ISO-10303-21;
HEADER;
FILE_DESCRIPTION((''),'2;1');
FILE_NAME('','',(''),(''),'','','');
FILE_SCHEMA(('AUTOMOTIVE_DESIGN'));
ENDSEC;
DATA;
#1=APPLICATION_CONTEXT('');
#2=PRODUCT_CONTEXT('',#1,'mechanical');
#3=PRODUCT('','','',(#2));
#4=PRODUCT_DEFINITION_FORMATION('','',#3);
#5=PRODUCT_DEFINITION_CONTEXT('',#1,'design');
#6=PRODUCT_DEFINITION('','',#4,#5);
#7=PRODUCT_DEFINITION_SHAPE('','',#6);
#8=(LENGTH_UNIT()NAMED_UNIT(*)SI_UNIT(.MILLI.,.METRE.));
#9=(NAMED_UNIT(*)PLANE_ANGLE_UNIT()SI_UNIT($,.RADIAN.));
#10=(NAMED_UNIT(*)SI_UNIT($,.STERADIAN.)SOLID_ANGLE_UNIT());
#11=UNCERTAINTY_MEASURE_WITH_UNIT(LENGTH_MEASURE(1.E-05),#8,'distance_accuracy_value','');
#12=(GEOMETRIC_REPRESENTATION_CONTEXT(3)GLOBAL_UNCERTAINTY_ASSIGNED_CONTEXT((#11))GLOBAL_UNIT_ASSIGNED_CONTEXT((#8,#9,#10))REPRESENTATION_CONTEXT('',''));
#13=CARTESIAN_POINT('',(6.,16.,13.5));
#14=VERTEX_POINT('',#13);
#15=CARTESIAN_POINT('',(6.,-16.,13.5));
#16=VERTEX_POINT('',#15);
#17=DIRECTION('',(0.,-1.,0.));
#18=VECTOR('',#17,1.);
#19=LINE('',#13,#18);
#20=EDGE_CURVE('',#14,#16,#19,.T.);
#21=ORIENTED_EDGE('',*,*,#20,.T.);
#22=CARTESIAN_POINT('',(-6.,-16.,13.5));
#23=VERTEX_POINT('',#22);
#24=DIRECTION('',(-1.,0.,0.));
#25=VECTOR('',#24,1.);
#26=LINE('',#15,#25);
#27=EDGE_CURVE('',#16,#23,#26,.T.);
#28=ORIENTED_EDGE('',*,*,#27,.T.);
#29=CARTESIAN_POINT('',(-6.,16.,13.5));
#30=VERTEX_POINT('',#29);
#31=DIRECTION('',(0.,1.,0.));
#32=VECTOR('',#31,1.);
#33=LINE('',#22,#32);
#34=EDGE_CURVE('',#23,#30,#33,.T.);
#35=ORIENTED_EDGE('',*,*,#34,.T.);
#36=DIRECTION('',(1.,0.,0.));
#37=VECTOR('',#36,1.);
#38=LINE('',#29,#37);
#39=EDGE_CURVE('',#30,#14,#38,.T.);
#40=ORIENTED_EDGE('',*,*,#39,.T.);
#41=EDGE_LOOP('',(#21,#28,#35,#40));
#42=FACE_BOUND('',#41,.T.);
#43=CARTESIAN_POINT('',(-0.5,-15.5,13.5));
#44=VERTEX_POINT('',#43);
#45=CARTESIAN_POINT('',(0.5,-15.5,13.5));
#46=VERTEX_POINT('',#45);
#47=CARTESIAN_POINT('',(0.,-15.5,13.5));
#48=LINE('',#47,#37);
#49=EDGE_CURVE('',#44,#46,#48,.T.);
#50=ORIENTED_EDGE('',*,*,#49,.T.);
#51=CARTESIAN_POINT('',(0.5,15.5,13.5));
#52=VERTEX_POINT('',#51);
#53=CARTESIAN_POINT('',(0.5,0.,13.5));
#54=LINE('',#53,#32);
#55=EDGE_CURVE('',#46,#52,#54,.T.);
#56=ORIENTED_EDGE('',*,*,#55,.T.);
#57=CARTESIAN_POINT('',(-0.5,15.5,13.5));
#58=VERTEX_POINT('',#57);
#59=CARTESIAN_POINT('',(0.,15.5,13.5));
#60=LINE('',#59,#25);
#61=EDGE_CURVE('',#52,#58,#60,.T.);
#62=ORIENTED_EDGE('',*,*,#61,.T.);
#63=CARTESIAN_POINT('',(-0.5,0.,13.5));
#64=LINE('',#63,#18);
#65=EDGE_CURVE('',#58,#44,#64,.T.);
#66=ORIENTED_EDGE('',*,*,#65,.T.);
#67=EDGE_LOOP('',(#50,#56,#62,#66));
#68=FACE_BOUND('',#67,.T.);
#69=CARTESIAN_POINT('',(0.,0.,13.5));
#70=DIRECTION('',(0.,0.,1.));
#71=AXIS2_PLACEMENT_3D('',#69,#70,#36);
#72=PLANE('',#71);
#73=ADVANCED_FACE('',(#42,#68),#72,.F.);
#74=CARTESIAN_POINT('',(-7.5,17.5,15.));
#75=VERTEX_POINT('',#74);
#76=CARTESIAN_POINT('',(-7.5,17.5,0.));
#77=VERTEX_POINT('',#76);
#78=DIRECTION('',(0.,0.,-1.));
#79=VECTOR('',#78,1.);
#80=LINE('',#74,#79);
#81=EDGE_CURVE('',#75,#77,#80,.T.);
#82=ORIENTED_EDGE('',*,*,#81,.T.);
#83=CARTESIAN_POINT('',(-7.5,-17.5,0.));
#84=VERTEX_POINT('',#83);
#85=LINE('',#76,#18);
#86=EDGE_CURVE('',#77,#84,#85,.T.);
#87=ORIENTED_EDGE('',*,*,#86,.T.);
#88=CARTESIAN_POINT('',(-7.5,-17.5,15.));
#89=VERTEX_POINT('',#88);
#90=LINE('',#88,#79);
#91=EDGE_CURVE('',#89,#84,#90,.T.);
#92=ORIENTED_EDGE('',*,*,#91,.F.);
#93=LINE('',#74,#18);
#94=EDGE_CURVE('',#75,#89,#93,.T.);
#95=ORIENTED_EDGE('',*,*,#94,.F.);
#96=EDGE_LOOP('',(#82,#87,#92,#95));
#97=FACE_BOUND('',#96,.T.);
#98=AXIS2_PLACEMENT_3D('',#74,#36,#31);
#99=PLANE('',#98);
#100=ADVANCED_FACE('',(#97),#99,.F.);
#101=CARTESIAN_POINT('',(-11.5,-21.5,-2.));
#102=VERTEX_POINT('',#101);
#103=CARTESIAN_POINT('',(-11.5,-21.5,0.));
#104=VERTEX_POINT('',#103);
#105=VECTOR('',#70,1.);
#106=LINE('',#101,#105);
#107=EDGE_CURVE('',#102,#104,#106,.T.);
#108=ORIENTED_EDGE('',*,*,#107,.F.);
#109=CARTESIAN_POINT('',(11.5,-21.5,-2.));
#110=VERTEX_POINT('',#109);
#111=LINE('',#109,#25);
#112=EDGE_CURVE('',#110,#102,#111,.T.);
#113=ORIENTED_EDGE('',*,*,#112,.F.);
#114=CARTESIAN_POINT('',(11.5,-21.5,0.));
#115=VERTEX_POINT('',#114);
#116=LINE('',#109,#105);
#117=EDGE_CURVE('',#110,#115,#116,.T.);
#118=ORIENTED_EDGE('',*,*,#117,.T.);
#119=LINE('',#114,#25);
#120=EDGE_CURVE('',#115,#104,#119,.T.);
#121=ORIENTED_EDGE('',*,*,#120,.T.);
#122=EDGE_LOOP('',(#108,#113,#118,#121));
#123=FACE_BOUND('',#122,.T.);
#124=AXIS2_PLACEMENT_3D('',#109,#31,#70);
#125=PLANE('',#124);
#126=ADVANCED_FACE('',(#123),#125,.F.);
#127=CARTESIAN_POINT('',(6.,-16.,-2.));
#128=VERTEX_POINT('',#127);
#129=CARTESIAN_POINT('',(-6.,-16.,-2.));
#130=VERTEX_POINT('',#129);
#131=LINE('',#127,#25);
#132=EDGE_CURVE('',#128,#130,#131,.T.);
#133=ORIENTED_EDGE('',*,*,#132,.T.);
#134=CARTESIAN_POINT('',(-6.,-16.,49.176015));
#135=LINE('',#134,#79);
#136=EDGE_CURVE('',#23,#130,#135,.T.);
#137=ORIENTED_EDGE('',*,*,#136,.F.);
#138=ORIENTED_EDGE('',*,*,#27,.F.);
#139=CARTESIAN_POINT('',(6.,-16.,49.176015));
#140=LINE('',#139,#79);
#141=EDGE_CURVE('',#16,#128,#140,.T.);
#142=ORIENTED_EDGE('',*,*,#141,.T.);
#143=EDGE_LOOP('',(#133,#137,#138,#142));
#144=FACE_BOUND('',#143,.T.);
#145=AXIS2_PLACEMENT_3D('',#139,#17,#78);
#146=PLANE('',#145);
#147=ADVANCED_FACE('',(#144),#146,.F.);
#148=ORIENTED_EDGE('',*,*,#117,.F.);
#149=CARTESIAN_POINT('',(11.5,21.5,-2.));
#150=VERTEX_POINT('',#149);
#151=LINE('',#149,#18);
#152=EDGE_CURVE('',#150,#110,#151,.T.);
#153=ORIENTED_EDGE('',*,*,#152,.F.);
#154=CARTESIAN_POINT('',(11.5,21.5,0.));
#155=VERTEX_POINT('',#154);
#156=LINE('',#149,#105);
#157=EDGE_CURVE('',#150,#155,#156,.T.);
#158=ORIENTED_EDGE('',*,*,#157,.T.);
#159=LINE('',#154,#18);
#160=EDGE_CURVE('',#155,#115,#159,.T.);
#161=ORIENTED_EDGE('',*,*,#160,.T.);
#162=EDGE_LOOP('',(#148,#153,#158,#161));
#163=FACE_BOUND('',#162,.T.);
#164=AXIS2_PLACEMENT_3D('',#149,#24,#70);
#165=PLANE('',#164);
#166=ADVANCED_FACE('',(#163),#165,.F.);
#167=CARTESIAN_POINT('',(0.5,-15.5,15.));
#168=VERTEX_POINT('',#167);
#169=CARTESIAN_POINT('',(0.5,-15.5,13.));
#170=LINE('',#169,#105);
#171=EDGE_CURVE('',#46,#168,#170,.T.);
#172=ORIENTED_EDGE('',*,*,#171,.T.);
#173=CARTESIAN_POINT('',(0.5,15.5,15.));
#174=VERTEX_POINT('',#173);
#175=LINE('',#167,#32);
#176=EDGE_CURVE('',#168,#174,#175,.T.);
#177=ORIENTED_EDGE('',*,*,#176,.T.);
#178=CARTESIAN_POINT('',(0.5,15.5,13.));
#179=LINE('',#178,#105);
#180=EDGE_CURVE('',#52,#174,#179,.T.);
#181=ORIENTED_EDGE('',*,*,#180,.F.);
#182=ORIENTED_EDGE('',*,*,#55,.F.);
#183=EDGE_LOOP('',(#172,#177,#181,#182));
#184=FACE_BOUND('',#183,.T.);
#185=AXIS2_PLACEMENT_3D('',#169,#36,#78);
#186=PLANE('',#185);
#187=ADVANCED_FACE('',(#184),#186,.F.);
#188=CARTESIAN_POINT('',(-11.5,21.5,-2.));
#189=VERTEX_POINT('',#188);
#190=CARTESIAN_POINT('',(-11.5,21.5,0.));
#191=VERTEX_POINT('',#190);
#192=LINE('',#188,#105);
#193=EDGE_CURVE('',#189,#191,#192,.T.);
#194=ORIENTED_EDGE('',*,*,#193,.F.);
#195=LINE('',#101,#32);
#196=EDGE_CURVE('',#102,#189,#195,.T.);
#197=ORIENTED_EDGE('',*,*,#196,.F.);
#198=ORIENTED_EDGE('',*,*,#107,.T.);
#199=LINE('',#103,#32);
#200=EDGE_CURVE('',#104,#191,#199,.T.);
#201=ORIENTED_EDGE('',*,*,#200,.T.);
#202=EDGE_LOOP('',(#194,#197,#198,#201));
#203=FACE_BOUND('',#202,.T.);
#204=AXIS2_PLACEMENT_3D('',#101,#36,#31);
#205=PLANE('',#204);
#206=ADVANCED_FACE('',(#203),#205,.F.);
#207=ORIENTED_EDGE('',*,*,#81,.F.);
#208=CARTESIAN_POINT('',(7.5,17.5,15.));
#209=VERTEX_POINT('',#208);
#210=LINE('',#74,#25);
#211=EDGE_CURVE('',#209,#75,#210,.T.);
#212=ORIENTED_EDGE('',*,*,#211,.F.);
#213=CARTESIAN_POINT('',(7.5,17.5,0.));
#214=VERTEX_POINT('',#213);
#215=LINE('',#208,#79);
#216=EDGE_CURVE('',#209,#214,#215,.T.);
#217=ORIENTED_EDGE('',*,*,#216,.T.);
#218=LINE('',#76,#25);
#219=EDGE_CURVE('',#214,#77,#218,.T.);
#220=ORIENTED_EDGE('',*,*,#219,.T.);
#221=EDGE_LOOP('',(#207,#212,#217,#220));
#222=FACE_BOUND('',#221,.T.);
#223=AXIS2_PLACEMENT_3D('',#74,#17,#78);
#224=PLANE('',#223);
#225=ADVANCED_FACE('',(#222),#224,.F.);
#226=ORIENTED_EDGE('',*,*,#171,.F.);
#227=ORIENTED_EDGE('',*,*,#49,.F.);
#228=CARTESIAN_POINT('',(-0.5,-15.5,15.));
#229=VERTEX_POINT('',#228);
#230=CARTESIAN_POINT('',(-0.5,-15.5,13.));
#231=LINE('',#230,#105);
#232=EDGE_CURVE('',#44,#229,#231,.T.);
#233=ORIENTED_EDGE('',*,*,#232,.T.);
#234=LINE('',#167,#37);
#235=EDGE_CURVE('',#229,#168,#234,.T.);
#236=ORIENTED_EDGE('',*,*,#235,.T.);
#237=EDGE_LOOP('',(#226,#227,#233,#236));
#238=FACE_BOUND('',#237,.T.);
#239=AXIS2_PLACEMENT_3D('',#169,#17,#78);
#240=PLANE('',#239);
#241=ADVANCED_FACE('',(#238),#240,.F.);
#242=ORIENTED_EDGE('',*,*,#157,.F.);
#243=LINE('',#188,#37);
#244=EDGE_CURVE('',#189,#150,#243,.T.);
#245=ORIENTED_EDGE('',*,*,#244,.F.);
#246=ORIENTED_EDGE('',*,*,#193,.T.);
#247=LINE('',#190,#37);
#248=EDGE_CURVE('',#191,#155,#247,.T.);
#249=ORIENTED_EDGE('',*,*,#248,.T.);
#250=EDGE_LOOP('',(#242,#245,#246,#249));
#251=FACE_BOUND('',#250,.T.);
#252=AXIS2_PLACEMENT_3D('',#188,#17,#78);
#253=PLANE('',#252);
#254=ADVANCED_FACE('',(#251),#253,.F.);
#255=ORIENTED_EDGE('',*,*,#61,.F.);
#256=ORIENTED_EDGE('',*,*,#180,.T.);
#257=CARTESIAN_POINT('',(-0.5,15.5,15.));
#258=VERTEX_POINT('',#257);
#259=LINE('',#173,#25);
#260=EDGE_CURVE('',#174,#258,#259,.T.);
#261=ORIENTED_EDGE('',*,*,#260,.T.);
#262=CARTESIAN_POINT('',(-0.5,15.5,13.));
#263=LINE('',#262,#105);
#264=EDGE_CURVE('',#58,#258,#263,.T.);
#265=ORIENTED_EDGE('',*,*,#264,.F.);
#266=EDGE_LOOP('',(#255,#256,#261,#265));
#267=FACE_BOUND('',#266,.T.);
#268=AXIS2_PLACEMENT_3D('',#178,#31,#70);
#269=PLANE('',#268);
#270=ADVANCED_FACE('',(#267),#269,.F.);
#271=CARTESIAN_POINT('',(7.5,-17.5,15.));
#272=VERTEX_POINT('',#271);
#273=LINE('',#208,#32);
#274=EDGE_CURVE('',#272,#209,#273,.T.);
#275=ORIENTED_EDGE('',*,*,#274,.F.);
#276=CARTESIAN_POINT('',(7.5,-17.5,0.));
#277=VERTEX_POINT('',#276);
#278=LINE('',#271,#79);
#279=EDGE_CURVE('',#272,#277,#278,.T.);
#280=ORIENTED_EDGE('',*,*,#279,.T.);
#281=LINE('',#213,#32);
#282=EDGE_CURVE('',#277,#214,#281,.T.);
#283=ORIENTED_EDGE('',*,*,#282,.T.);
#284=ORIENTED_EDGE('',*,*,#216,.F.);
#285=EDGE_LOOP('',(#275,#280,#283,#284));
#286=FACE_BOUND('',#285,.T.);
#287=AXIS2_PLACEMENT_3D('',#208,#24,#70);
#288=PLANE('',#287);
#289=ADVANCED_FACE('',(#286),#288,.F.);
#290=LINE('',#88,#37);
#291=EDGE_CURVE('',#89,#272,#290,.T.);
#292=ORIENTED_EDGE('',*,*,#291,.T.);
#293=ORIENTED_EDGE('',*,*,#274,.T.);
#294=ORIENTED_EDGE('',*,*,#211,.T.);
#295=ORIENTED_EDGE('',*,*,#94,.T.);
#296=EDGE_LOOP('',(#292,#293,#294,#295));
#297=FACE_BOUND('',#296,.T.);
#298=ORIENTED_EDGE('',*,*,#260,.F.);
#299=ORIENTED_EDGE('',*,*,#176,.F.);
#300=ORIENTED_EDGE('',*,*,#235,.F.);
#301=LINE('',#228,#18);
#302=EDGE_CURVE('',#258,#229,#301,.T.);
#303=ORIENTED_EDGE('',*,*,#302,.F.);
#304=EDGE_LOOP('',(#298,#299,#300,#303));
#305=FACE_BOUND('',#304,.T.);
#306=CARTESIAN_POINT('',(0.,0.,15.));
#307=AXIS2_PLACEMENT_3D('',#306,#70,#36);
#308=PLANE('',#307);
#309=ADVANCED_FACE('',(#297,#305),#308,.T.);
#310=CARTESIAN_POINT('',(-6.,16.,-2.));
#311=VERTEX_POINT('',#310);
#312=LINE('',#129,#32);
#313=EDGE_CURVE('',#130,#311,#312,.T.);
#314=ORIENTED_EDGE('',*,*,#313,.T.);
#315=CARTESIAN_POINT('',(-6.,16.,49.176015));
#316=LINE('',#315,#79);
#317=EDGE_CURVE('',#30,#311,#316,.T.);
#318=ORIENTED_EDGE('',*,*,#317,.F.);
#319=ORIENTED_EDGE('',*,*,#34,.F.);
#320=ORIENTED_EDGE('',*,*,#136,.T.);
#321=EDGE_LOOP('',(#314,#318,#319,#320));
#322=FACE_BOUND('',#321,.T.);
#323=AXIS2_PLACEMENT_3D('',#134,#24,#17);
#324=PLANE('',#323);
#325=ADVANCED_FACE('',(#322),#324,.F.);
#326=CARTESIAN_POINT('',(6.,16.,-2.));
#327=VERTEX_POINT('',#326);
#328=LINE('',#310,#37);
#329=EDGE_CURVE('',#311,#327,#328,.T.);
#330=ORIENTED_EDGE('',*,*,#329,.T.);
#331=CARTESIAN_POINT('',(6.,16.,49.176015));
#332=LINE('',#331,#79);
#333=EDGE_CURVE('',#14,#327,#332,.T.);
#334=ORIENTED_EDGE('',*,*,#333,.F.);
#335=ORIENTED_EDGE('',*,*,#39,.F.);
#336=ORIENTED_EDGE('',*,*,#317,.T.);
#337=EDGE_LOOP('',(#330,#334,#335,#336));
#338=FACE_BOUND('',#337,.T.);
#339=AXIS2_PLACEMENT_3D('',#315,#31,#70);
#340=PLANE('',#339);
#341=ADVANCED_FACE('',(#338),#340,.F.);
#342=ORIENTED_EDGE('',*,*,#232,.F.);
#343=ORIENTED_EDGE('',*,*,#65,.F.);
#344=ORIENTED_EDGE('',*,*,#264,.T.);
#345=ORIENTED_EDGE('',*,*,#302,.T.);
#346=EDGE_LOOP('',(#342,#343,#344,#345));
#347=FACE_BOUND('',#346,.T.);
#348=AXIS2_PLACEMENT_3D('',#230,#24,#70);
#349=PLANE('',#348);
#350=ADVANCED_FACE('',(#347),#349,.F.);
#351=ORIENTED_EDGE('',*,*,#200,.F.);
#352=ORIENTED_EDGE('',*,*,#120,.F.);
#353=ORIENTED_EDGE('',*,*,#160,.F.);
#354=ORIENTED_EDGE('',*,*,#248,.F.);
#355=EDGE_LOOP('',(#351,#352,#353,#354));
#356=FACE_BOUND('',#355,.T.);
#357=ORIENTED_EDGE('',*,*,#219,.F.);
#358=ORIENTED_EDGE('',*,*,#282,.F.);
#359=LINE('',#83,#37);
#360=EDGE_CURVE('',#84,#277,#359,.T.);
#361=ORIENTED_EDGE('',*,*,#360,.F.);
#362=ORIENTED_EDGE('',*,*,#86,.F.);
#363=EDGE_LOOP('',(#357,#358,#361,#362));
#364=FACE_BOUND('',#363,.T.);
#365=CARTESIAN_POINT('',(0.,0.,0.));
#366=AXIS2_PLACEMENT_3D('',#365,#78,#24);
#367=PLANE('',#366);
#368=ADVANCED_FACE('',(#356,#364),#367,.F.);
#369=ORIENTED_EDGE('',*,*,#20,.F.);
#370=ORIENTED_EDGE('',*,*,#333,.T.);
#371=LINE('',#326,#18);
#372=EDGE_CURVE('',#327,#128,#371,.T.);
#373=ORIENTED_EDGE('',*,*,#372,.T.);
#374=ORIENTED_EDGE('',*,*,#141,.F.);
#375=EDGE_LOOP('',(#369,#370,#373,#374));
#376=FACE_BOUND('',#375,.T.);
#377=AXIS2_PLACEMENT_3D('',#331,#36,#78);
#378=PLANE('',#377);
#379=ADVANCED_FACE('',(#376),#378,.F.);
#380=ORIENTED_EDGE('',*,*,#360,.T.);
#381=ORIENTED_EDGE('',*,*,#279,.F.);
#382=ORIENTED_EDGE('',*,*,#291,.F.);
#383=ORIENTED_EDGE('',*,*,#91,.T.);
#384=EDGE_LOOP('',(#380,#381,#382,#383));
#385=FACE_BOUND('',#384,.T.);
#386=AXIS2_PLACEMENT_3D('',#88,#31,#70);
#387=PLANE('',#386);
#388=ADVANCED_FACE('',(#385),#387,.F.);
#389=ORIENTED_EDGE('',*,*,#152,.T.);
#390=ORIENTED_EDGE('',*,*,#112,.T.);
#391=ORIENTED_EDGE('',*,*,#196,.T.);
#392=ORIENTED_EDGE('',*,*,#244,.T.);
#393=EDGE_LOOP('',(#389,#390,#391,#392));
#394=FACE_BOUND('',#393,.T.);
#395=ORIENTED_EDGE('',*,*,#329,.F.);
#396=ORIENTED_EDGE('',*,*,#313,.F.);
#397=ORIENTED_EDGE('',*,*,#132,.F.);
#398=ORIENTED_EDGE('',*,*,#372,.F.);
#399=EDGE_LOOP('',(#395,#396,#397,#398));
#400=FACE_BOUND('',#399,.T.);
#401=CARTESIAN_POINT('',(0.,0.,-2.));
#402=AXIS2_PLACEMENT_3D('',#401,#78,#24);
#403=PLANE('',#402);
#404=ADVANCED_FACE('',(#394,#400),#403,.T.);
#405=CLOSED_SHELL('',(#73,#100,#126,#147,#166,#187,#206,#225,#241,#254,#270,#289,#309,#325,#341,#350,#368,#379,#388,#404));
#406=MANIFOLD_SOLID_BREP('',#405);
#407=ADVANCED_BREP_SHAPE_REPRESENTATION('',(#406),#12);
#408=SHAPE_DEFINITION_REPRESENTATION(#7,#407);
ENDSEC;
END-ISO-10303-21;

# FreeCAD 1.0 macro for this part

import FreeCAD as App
import Part
import Sketcher

V = App.Vector
Q = App.Units.Quantity


def add_polygon(sketch, points):
    """Adds a closed chain of lines whose ends are joined by coincident constraints."""
    first, n = sketch.GeometryCount, len(points)
    for a, b in zip(points, points[1:] + points[:1]):
        sketch.addGeometry(Part.LineSegment(App.Vector(*a, 0), App.Vector(*b, 0)), False)
    for i in range(n):
        sketch.addConstraint(Sketcher.Constraint("Coincident", first + i, 2, first + (i + 1) % n, 1))

doc = App.newDocument("Part")
body = doc.addObject("PartDesign::Body", "Body")

# Sketch on XY plane
sketch1 = doc.addObject("Sketcher::SketchObject", "Sketch")
body.addObject(sketch1)
sketch1.AttachmentSupport = (doc.XY_Plane, [""])
sketch1.MapMode = "FlatFace"
add_polygon(sketch1, [(-7.5, 17.5), (-7.5, -17.5), (7.5, -17.5), (7.5, 17.5)])  # lines 0-3
sketch1.addConstraint(Sketcher.Constraint("Vertical", 0))
sketch1.addConstraint(Sketcher.Constraint("Horizontal", 1))
sketch1.addConstraint(Sketcher.Constraint("Vertical", 2))
sketch1.addConstraint(Sketcher.Constraint("Horizontal", 3))
sketch1.addConstraint(Sketcher.Constraint("Symmetric", 0, 2, 2, 2, -1, 1))
sketch1.addConstraint(Sketcher.Constraint("DistanceX", 1, 1, 1, 2, Q("15 mm")))
sketch1.addConstraint(Sketcher.Constraint("DistanceY", 0, 2, 0, 1, Q("35 mm")))
pad1 = doc.addObject("PartDesign::Pad", "Pad")
body.addObject(pad1)
pad1.Profile = sketch1
pad1.Length = 15

# Sketch on XY plane
sketch2 = doc.addObject("Sketcher::SketchObject", "Sketch001")
body.addObject(sketch2)
sketch2.AttachmentSupport = (doc.XY_Plane, [""])
sketch2.MapMode = "FlatFace"
add_polygon(sketch2, [(6, 16), (6, -16), (-6, -16), (-6, 16)])  # lines 0-3
sketch2.addConstraint(Sketcher.Constraint("Vertical", 0))
sketch2.addConstraint(Sketcher.Constraint("Horizontal", 1))
sketch2.addConstraint(Sketcher.Constraint("Vertical", 2))
sketch2.addConstraint(Sketcher.Constraint("Horizontal", 3))
sketch2.addConstraint(Sketcher.Constraint("Symmetric", 0, 2, 2, 2, -1, 1))
sketch2.addConstraint(Sketcher.Constraint("DistanceX", 1, 2, 1, 1, Q("12 mm")))
sketch2.addConstraint(Sketcher.Constraint("DistanceY", 0, 2, 0, 1, Q("32 mm")))
pocket1 = doc.addObject("PartDesign::Pocket", "Pocket")
body.addObject(pocket1)
pocket1.Profile = sketch2
pocket1.Length = 13.5
pocket1.Reversed = True

# Sketch on XY plane
sketch3 = doc.addObject("Sketcher::SketchObject", "Sketch002")
body.addObject(sketch3)
sketch3.AttachmentSupport = (doc.XY_Plane, [""])
sketch3.MapMode = "FlatFace"
add_polygon(sketch3, [(11.5, 21.5), (11.5, -21.5), (-11.5, -21.5), (-11.5, 21.5)])  # lines 0-3
add_polygon(sketch3, [(-6, -16), (6, -16), (6, 16), (-6, 16)])  # lines 4-7
sketch3.addConstraint(Sketcher.Constraint("Vertical", 0))
sketch3.addConstraint(Sketcher.Constraint("Horizontal", 1))
sketch3.addConstraint(Sketcher.Constraint("Vertical", 2))
sketch3.addConstraint(Sketcher.Constraint("Horizontal", 3))
sketch3.addConstraint(Sketcher.Constraint("Horizontal", 4))
sketch3.addConstraint(Sketcher.Constraint("Vertical", 5))
sketch3.addConstraint(Sketcher.Constraint("Horizontal", 6))
sketch3.addConstraint(Sketcher.Constraint("Vertical", 7))
sketch3.addConstraint(Sketcher.Constraint("Symmetric", 0, 2, 2, 2, -1, 1))
sketch3.addConstraint(Sketcher.Constraint("Symmetric", 4, 2, 6, 2, -1, 1))
sketch3.addConstraint(Sketcher.Constraint("DistanceX", 1, 2, 1, 1, Q("23 mm")))
sketch3.addConstraint(Sketcher.Constraint("DistanceX", 4, 1, 4, 2, Q("12 mm")))
sketch3.addConstraint(Sketcher.Constraint("DistanceY", 0, 2, 0, 1, Q("43 mm")))
sketch3.addConstraint(Sketcher.Constraint("DistanceY", 5, 1, 5, 2, Q("32 mm")))
pad2 = doc.addObject("PartDesign::Pad", "Pad001")
body.addObject(pad2)
pad2.Profile = sketch3
pad2.Length = 2
pad2.Reversed = True

# Sketch on XY plane
sketch4 = doc.addObject("Sketcher::SketchObject", "Sketch003")
body.addObject(sketch4)
sketch4.AttachmentSupport = (doc.XY_Plane, [""])
sketch4.MapMode = "FlatFace"
sketch4.AttachmentOffset = App.Placement(V(0, 0, 15), App.Rotation())
add_polygon(sketch4, [(-0.5, 15.5), (-0.5, -15.5), (0.5, -15.5), (0.5, 15.5)])  # lines 0-3
sketch4.addConstraint(Sketcher.Constraint("Vertical", 0))
sketch4.addConstraint(Sketcher.Constraint("Horizontal", 1))
sketch4.addConstraint(Sketcher.Constraint("Vertical", 2))
sketch4.addConstraint(Sketcher.Constraint("Horizontal", 3))
sketch4.addConstraint(Sketcher.Constraint("Symmetric", 0, 2, 2, 2, -1, 1))
sketch4.addConstraint(Sketcher.Constraint("DistanceX", 1, 1, 1, 2, Q("1 mm")))
sketch4.addConstraint(Sketcher.Constraint("DistanceY", 0, 2, 0, 1, Q("31 mm")))
pocket2 = doc.addObject("PartDesign::Pocket", "Pocket001")
body.addObject(pocket2)
pocket2.Profile = sketch4
pocket2.Length = 2

doc.recompute()
